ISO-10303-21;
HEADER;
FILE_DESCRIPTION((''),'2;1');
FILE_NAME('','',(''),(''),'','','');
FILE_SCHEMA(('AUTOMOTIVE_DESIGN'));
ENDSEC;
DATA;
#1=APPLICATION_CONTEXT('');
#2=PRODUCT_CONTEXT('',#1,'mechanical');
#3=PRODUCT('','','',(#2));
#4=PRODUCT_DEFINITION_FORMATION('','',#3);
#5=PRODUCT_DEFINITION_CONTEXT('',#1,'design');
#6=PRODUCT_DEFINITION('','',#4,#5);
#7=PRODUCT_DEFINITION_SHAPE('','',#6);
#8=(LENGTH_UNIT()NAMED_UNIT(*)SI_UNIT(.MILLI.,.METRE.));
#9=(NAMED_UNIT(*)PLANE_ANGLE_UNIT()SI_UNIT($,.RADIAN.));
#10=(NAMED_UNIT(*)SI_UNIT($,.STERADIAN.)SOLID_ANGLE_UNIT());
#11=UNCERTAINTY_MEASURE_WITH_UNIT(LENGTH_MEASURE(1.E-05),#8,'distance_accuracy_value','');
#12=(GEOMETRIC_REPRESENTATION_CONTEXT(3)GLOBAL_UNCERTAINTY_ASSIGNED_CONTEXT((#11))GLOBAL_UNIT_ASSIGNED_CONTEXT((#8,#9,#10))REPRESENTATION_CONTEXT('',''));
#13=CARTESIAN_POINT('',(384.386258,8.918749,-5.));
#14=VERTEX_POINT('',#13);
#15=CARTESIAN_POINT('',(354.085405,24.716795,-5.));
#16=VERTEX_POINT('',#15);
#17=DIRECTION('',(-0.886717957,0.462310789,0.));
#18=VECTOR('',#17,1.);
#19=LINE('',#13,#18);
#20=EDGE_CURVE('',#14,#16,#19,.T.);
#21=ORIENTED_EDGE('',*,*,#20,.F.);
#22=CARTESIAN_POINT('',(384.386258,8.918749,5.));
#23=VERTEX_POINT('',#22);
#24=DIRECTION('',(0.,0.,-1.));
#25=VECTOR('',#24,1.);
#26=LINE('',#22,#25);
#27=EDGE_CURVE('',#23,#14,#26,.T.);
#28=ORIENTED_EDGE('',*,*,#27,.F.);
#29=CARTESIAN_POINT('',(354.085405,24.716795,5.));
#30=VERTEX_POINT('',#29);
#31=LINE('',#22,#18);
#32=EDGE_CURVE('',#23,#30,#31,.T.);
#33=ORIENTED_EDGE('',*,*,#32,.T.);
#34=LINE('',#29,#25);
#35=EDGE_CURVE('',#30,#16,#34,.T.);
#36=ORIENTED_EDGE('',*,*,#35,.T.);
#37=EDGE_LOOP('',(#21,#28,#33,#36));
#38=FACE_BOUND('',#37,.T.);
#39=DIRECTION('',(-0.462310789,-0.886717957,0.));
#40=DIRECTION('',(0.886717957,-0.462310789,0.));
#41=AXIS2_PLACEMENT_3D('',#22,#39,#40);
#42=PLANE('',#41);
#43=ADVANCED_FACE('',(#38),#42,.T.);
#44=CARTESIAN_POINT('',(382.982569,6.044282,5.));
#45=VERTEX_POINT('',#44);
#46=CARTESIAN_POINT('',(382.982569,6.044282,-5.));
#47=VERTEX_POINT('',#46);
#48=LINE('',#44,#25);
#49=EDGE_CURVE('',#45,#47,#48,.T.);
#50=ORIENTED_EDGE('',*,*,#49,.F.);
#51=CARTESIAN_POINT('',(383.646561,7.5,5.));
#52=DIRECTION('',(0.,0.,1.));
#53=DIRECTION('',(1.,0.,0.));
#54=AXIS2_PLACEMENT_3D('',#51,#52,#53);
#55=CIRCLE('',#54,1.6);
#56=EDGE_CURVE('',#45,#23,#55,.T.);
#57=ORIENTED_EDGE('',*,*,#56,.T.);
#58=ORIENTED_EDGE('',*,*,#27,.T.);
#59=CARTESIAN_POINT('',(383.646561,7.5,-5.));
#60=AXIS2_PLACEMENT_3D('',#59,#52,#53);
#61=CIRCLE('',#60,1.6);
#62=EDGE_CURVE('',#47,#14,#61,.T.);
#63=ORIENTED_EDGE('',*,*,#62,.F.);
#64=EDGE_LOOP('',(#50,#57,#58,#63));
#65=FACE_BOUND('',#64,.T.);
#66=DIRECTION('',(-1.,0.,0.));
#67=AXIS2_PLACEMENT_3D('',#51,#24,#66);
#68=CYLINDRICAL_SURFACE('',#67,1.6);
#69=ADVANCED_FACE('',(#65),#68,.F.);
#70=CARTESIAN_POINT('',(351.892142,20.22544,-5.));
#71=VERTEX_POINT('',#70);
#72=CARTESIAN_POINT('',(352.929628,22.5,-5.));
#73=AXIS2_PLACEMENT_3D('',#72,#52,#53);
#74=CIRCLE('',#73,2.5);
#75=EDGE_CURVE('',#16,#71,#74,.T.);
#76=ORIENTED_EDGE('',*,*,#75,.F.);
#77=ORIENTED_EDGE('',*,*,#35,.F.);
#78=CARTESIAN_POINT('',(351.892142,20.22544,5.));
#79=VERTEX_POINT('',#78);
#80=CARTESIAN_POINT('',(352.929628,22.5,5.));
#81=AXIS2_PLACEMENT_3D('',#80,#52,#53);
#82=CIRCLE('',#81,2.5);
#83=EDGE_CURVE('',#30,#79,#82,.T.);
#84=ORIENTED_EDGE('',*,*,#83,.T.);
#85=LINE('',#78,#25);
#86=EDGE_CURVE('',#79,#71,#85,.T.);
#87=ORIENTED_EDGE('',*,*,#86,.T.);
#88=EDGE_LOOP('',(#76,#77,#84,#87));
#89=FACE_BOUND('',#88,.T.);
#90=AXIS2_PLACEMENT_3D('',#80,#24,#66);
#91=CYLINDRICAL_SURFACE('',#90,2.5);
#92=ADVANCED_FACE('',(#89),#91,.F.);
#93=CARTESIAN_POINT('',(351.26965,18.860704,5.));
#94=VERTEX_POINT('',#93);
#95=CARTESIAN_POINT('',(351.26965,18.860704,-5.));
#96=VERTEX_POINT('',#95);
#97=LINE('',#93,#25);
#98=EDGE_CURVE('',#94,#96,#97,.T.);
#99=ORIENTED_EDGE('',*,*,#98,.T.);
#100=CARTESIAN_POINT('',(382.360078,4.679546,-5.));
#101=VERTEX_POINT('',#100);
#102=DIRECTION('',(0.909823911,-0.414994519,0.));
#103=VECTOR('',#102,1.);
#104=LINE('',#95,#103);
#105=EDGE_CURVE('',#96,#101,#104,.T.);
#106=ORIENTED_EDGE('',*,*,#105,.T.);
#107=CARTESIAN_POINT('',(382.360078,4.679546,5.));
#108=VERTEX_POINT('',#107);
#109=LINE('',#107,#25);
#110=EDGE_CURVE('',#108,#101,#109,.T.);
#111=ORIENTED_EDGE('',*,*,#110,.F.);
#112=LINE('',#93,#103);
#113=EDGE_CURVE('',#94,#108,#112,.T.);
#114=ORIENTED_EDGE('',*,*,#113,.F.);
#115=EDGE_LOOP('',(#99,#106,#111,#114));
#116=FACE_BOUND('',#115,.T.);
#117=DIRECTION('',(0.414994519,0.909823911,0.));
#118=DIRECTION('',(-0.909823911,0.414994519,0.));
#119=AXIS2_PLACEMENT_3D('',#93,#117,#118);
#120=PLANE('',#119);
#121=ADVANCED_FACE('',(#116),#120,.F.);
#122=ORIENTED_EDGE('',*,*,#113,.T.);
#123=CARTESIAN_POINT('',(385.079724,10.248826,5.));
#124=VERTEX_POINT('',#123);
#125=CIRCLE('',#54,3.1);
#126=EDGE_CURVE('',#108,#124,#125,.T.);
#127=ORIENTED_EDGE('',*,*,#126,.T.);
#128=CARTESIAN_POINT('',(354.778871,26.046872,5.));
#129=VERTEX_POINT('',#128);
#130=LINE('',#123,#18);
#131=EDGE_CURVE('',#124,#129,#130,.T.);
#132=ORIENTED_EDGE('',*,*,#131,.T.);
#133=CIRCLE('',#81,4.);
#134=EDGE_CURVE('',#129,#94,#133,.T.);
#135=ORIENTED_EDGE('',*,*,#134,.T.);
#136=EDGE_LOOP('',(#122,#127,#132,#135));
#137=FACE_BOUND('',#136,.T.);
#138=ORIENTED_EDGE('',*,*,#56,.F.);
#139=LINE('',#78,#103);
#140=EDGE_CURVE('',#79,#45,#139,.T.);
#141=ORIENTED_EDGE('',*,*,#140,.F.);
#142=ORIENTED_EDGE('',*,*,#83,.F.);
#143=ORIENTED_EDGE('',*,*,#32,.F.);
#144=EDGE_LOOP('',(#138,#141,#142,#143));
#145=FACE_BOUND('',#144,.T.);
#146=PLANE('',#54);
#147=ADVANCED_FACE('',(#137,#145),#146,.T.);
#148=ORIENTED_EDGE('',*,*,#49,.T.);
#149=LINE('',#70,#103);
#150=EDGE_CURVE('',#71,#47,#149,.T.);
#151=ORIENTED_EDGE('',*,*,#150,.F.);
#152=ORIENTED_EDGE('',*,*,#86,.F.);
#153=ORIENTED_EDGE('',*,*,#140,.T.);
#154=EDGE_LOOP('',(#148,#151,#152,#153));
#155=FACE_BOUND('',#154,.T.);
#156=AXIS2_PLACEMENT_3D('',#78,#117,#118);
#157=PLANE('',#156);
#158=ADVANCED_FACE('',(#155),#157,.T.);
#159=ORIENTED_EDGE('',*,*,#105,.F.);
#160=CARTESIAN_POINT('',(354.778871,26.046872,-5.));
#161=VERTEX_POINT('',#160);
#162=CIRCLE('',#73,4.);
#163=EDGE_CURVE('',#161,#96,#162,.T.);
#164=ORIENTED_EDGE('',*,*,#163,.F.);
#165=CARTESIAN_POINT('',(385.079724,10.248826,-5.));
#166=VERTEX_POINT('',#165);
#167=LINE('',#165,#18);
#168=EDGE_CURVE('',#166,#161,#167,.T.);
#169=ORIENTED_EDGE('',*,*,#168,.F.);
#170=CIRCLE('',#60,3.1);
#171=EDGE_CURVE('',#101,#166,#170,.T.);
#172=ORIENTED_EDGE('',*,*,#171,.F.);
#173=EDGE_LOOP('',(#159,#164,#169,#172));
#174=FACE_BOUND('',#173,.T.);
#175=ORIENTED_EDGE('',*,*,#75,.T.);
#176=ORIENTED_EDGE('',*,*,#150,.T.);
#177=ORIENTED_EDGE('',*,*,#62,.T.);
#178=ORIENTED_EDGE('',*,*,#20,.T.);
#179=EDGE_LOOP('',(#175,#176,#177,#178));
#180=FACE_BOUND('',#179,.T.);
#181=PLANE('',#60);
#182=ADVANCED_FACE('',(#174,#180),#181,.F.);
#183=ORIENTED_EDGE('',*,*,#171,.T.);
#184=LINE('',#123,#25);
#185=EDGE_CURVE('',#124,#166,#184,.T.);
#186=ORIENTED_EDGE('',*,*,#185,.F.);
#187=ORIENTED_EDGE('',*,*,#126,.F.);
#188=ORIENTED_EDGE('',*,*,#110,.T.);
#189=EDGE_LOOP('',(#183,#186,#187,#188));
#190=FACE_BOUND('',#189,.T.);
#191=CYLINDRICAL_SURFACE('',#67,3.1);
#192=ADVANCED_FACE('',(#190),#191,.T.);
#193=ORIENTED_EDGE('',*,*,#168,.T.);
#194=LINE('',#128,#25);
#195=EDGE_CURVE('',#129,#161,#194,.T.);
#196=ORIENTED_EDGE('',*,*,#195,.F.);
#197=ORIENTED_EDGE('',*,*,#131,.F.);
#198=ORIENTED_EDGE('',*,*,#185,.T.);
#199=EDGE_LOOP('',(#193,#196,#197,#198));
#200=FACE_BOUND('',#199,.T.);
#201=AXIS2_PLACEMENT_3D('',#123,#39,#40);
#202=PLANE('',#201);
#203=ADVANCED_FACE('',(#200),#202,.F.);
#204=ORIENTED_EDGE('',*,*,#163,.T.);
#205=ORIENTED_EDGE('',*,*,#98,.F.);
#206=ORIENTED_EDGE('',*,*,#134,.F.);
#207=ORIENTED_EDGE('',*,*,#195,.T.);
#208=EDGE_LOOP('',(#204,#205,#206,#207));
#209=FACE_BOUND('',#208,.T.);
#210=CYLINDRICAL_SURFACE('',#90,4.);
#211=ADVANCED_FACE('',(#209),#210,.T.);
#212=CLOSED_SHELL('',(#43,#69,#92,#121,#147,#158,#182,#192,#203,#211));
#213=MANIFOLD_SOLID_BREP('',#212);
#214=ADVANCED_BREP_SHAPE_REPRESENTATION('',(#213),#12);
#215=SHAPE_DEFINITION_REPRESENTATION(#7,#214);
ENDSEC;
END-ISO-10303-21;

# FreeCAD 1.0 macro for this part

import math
import FreeCAD as App
import Part
import Sketcher

doc = App.newDocument("Part")
params = doc.addObject("Spreadsheet::Sheet", "Params")
for row, (alias, value) in enumerate([
    ("sketch1_radius", "4 mm"),
    ("sketch1_radius2", "3.1 mm"),
    ("sketch1_radius3", "2.5 mm"),
    ("pad1_length", "10 mm"),
], start=1):
    params.set(f"A{row}", alias)
    params.set(f"B{row}", "=" + value)
    params.setAlias(f"B{row}", alias)

body = doc.addObject("PartDesign::Body", "Body")

sketch1 = doc.addObject("Sketcher::SketchObject", "Sketch")
body.addObject(sketch1)
sketch1.AttachmentSupport = (doc.XY_Plane, [""])
sketch1.MapMode = "FlatFace"
sketch1.addGeometry(Part.LineSegment(App.Vector(351.3, 18.9, 0), App.Vector(382.4, 4.7, 0)), False)
sketch1.addGeometry(Part.ArcOfCircle(Part.Circle(App.Vector(383.6, 7.5, 0), App.Vector(0, 0, 1), 3.1), math.radians(-115), math.radians(62)), False)
sketch1.addGeometry(Part.LineSegment(App.Vector(385.1, 10.2, 0), App.Vector(354.8, 26, 0)), False)
sketch1.addGeometry(Part.ArcOfCircle(Part.Circle(App.Vector(352.9, 22.5, 0), App.Vector(0, 0, 1), 4), math.radians(62), math.radians(245)), False)
sketch1.addGeometry(Part.LineSegment(App.Vector(383, 6, 0), App.Vector(351.9, 20.2, 0)), False)
sketch1.addGeometry(Part.ArcOfCircle(Part.Circle(App.Vector(352.9, 22.5, 0), App.Vector(0, 0, 1), 2.5), math.radians(62), math.radians(245)), False)
sketch1.addGeometry(Part.LineSegment(App.Vector(354.1, 24.7, 0), App.Vector(384.4, 8.9, 0)), False)
sketch1.addGeometry(Part.ArcOfCircle(Part.Circle(App.Vector(383.6, 7.5, 0), App.Vector(0, 0, 1), 1.6), math.radians(-115), math.radians(62)), False)
sketch1.addConstraint(Sketcher.Constraint("Tangent", 0, 2, 1, 1))
sketch1.addConstraint(Sketcher.Constraint("Tangent", 1, 2, 2, 1))
sketch1.addConstraint(Sketcher.Constraint("Tangent", 2, 2, 3, 1))
sketch1.addConstraint(Sketcher.Constraint("Tangent", 3, 2, 0, 1))
sketch1.addConstraint(Sketcher.Constraint("Tangent", 4, 2, 5, 2))
sketch1.addConstraint(Sketcher.Constraint("Tangent", 5, 1, 6, 1))
sketch1.addConstraint(Sketcher.Constraint("Tangent", 6, 2, 7, 2))
sketch1.addConstraint(Sketcher.Constraint("Tangent", 7, 1, 4, 1))
sketch1.addConstraint(Sketcher.Constraint("Coincident", 5, 3, 3, 3))
sketch1.addConstraint(Sketcher.Constraint("Coincident", 7, 3, 1, 3))
sketch1.addConstraint(Sketcher.Constraint("Parallel", 0, 4))
sketch1.addConstraint(Sketcher.Constraint("Radius", 3, 4.0))
sketch1.addConstraint(Sketcher.Constraint("Radius", 1, 3.1))
sketch1.addConstraint(Sketcher.Constraint("Radius", 5, 2.5))
sketch1.addConstraint(Sketcher.Constraint("DistanceY", 1, 3, 3, 3, 15.0))
sketch1.addConstraint(Sketcher.Constraint("DistanceY", -1, 1, 1, 3, 7.5))
sketch1.addConstraint(Sketcher.Constraint("DistanceX", -1, 1, 1, 3, 383.646561))
sketch1.addConstraint(Sketcher.Constraint("DistanceX", -1, 1, 2, 2, 354.778871))
sketch1.setExpression("Constraints[11]", "Params.sketch1_radius")
sketch1.setExpression("Constraints[12]", "Params.sketch1_radius2")
sketch1.setExpression("Constraints[13]", "Params.sketch1_radius3")
pad1 = doc.addObject("PartDesign::Pad", "Pad")
body.addObject(pad1)
pad1.Profile = sketch1
pad1.setExpression("Length", "Params.pad1_length")
pad1.Midplane = True

doc.recompute()
